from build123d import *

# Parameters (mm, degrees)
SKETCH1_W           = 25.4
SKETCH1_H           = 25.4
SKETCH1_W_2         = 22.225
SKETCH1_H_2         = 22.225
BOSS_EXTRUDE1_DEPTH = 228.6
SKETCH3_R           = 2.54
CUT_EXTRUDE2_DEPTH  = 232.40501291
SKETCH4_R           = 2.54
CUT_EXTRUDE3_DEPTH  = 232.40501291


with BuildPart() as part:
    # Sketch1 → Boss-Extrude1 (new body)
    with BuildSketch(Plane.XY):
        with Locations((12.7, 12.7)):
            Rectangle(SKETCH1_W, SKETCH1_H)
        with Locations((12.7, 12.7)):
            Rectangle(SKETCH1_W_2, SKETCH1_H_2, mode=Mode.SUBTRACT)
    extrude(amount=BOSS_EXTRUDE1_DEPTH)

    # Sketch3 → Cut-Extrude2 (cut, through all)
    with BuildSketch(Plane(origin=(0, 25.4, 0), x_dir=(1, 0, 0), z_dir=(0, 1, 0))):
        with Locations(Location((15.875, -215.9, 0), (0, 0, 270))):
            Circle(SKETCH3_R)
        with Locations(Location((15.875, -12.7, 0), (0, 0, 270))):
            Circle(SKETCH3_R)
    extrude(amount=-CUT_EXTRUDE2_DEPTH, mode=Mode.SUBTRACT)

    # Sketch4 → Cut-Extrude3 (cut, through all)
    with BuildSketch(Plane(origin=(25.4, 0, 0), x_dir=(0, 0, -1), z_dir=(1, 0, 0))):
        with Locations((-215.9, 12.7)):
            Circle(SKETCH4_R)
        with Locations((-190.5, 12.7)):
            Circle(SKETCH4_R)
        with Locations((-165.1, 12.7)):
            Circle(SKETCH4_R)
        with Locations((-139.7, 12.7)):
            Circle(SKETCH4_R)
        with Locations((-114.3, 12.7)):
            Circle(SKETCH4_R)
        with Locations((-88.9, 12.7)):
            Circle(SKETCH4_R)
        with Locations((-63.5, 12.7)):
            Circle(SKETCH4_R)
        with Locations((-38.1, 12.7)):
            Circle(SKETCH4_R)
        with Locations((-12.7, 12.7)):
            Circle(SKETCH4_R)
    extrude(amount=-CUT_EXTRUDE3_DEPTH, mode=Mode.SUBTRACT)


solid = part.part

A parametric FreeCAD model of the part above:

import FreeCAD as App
import Part
import Sketcher
Q = App.Units.Quantity


def add_polygon(sketch, points):
    """Adds a closed chain of lines whose ends are joined by coincident constraints."""
    first, n = sketch.GeometryCount, len(points)
    for a, b in zip(points, points[1:] + points[:1]):
        sketch.addGeometry(Part.LineSegment(App.Vector(*a, 0), App.Vector(*b, 0)), False)
    for i in range(n):
        sketch.addConstraint(Sketcher.Constraint("Coincident", first + i, 2, first + (i + 1) % n, 1))

doc = App.newDocument("Part")
body = doc.addObject("PartDesign::Body", "Body")

sketch1 = doc.addObject("Sketcher::SketchObject", "Sketch")
body.addObject(sketch1)
sketch1.AttachmentSupport = (doc.XY_Plane, [""])
sketch1.MapMode = "FlatFace"
add_polygon(sketch1, [(0, 25), (0, 0), (25, 0), (25, 25)])
add_polygon(sketch1, [(24, 2), (2, 2), (2, 24), (24, 24)])
sketch1.addConstraint([
    Sketcher.Constraint("Vertical", 0),
    Sketcher.Constraint("Horizontal", 1),
    Sketcher.Constraint("Vertical", 2),
    Sketcher.Constraint("Horizontal", 3),
    Sketcher.Constraint("Horizontal", 4),
    Sketcher.Constraint("Vertical", 5),
    Sketcher.Constraint("Horizontal", 6),
    Sketcher.Constraint("Vertical", 7),
    Sketcher.Constraint("Coincident", 0, 2, -1, 1),
    Sketcher.Constraint("Equal", 3, 0),
    Sketcher.Constraint("Equal", 6, 5),
    Sketcher.Constraint("DistanceX", 1, 1, 1, 2, Q("1 in")),
    Sketcher.Constraint("DistanceX", 4, 2, 4, 1, Q("0.875 in")),
    Sketcher.Constraint("DistanceX", -1, 1, 4, 2, Q("0.0625 in")),
    Sketcher.Constraint("DistanceY", -1, 1, 4, 2, Q("0.0625 in")),
])
pad1 = doc.addObject("PartDesign::Pad", "Pad")
body.addObject(pad1)
pad1.Profile = sketch1
pad1.Length = Q("9 in")

sketch2 = doc.addObject("Sketcher::SketchObject", "Sketch001")
body.addObject(sketch2)
sketch2.AttachmentSupport = (doc.XZ_Plane, [""])
sketch2.MapMode = "FlatFace"
sketch2.AttachmentOffset = App.Placement(App.Vector(0, 0, -1 * 25.4), App.Rotation())
sketch2.addGeometry([
    Part.Circle(App.Vector(15.9, 215.9, 0), App.Vector(0, 0, 1), 2.5),
    Part.Circle(App.Vector(15.9, 12.7, 0), App.Vector(0, 0, 1), 2.5),
], False)
sketch2.addConstraint([
    Sketcher.Constraint("Equal", 0, 1),
    Sketcher.Constraint("Vertical", 0, 3, 1, 3),
    Sketcher.Constraint("Diameter", 0, Q("0.2 in")),
    Sketcher.Constraint("DistanceY", 1, 3, 0, 3, Q("8 in")),
    Sketcher.Constraint("DistanceY", -1, 1, 0, 3, Q("8.5 in")),
    Sketcher.Constraint("DistanceX", -1, 1, 0, 3, Q("0.625 in")),
])
pocket1 = doc.addObject("PartDesign::Pocket", "Pocket")
body.addObject(pocket1)
pocket1.Profile = sketch2
pocket1.Type = "ThroughAll"
pocket1.Reversed = True

sketch3 = doc.addObject("Sketcher::SketchObject", "Sketch002")
body.addObject(sketch3)
sketch3.AttachmentSupport = (doc.YZ_Plane, [""])
sketch3.MapMode = "FlatFace"
sketch3.AttachmentOffset = App.Placement(App.Vector(0, 0, 1 * 25.4), App.Rotation())
sketch3.addGeometry([
    Part.Circle(App.Vector(12.7, 215.9, 0), App.Vector(0, 0, 1), 2.5),
    Part.Circle(App.Vector(12.7, 190.5, 0), App.Vector(0, 0, 1), 2.5),
    Part.Circle(App.Vector(12.7, 165.1, 0), App.Vector(0, 0, 1), 2.5),
    Part.Circle(App.Vector(12.7, 139.7, 0), App.Vector(0, 0, 1), 2.5),
    Part.Circle(App.Vector(12.7, 114.3, 0), App.Vector(0, 0, 1), 2.5),
    Part.Circle(App.Vector(12.7, 88.9, 0), App.Vector(0, 0, 1), 2.5),
    Part.Circle(App.Vector(12.7, 63.5, 0), App.Vector(0, 0, 1), 2.5),
    Part.Circle(App.Vector(12.7, 38.1, 0), App.Vector(0, 0, 1), 2.5),
    Part.Circle(App.Vector(12.7, 12.7, 0), App.Vector(0, 0, 1), 2.5),
], False)
sketch3.addConstraint([
    Sketcher.Constraint("Equal", 0, 1),
    Sketcher.Constraint("Equal", 1, 2),
    Sketcher.Constraint("Equal", 2, 3),
    Sketcher.Constraint("Equal", 3, 4),
    Sketcher.Constraint("Equal", 4, 5),
    Sketcher.Constraint("Equal", 5, 6),
    Sketcher.Constraint("Equal", 6, 7),
    Sketcher.Constraint("Equal", 7, 8),
    Sketcher.Constraint("Vertical", 0, 3, 1, 3),
    Sketcher.Constraint("Vertical", 1, 3, 2, 3),
    Sketcher.Constraint("Vertical", 2, 3, 3, 3),
    Sketcher.Constraint("Vertical", 3, 3, 4, 3),
    Sketcher.Constraint("Vertical", 4, 3, 5, 3),
    Sketcher.Constraint("Vertical", 5, 3, 6, 3),
    Sketcher.Constraint("Vertical", 6, 3, 7, 3),
    Sketcher.Constraint("Vertical", 7, 3, 8, 3),
    Sketcher.Constraint("Diameter", 0, Q("0.2 in")),
    Sketcher.Constraint("DistanceY", 1, 3, 0, 3, Q("1 in")),
    Sketcher.Constraint("DistanceY", 2, 3, 1, 3, Q("1 in")),
    Sketcher.Constraint("DistanceY", 3, 3, 2, 3, Q("1 in")),
    Sketcher.Constraint("DistanceY", 4, 3, 3, 3, Q("1 in")),
    Sketcher.Constraint("DistanceY", 5, 3, 4, 3, Q("1 in")),
    Sketcher.Constraint("DistanceY", 6, 3, 5, 3, Q("1 in")),
    Sketcher.Constraint("DistanceY", 7, 3, 6, 3, Q("1 in")),
    Sketcher.Constraint("DistanceY", 8, 3, 7, 3, Q("1 in")),
    Sketcher.Constraint("DistanceX", -1, 1, 0, 3, Q("0.5 in")),
    Sketcher.Constraint("DistanceY", -1, 1, 0, 3, Q("8.5 in")),
])
pocket2 = doc.addObject("PartDesign::Pocket", "Pocket001")
body.addObject(pocket2)
pocket2.Profile = sketch3
pocket2.Type = "ThroughAll"

doc.recompute()
